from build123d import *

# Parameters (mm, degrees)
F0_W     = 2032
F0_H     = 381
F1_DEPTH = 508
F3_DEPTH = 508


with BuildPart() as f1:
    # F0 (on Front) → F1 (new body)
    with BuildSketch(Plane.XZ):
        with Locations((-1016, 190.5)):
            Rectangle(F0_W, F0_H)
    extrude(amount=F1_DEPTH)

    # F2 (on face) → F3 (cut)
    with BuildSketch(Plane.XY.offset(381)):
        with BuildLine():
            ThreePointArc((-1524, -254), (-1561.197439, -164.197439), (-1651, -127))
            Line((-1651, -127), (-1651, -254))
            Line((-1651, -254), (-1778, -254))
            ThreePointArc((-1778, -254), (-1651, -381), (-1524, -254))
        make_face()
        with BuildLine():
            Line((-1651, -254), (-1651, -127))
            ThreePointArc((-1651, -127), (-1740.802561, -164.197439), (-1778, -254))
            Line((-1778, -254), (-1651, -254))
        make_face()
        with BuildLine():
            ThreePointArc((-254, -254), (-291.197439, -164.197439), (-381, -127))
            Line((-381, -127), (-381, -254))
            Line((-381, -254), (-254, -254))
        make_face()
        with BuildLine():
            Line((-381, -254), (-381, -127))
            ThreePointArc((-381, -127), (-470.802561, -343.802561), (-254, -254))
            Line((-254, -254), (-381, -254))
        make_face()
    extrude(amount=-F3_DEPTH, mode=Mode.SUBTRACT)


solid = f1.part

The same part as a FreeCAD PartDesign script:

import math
import FreeCAD as App
import Part
import Sketcher
from FreeCAD import Vector
Q = App.Units.Quantity


def add_polygon(sketch, points):
    """Adds a closed chain of lines whose ends are joined by coincident constraints."""
    first, n = sketch.GeometryCount, len(points)
    for a, b in zip(points, points[1:] + points[:1]):
        sketch.addGeometry(Part.LineSegment(App.Vector(*a, 0), App.Vector(*b, 0)), False)
    for i in range(n):
        sketch.addConstraint(Sketcher.Constraint("Coincident", first + i, 2, first + (i + 1) % n, 1))

doc = App.newDocument("Part")
body = doc.addObject("PartDesign::Body", "Body")

# Sketch on XZ plane
sketch1 = body.newObject("Sketcher::SketchObject", "Sketch")
sketch1.AttachmentSupport = (doc.getObject("XZ_Plane"), [""])
sketch1.MapMode = "FlatFace"
add_polygon(sketch1, [(-2032, 381), (-2032, 0), (0, 0), (0, 381)])  # lines 0-3
sketch1.addConstraint([
    Sketcher.Constraint("Vertical", 0),
    Sketcher.Constraint("Horizontal", 1),
    Sketcher.Constraint("Vertical", 2),
    Sketcher.Constraint("Horizontal", 3),
    Sketcher.Constraint("Coincident", 1, 2, -1, 1),
    Sketcher.Constraint("DistanceX", 1, 1, 1, 2, Q("80 in")),
    Sketcher.Constraint("DistanceY", 0, 2, 0, 1, Q("15 in")),
])
pad1 = body.newObject("PartDesign::Pad", "Pad")
pad1.Profile = sketch1
pad1.Length = Q("20 in")

# Sketch on XY plane
sketch2 = body.newObject("Sketcher::SketchObject", "Sketch001")
sketch2.AttachmentSupport = (doc.getObject("XY_Plane"), [""])
sketch2.MapMode = "FlatFace"
sketch2.AttachmentOffset = App.Placement(Vector(0, 0, 15 * 25.4), App.Rotation())
sketch2.addGeometry([
    Part.ArcOfCircle(Part.Circle(Vector(-1651, -254, 0), Vector(0, 0, 1), 127), math.radians(0), math.radians(90)),  # 0
    Part.ArcOfCircle(Part.Circle(Vector(-1651, -254, 0), Vector(0, 0, 1), 127), math.radians(90), math.radians(180)),  # 1
    Part.ArcOfCircle(Part.Circle(Vector(-1651, -254, 0), Vector(0, 0, 1), 127), math.radians(180), math.radians(360)),  # 2
    Part.ArcOfCircle(Part.Circle(Vector(-381, -254, 0), Vector(0, 0, 1), 127), math.radians(0), math.radians(90)),  # 3
    Part.ArcOfCircle(Part.Circle(Vector(-381, -254, 0), Vector(0, 0, 1), 127), math.radians(90), math.radians(360)),  # 4
], False)
sketch2.addConstraint([
    Sketcher.Constraint("Tangent", 0, 2, 1, 1),
    Sketcher.Constraint("Tangent", 1, 2, 2, 1),
    Sketcher.Constraint("Tangent", 2, 2, 0, 1),
    Sketcher.Constraint("Tangent", 3, 1, 4, 2),
    Sketcher.Constraint("Coincident", 4, 1, 3, 2),
    Sketcher.Constraint("Equal", 2, 3),
    Sketcher.Constraint("Horizontal", 2, 3, 3, 3),
    Sketcher.Constraint("Horizontal", 4, 3, 1, 2),
    Sketcher.Constraint("Horizontal", 1, 2, 2, 2),
    Sketcher.Constraint("Horizontal", 2, 2, 3, 1),
    Sketcher.Constraint("Vertical", 2, 3, 0, 2),
    Sketcher.Constraint("Vertical", 3, 3, 4, 1),
    Sketcher.Constraint("Radius", 0, Q("5 in")),
    Sketcher.Constraint("DistanceX", 0, 3, -1, 1, Q("65 in")),
    Sketcher.Constraint("DistanceY", 0, 3, -1, 1, Q("10 in")),
    Sketcher.Constraint("DistanceX", 3, 3, -1, 1, Q("15 in")),
])
pocket1 = body.newObject("PartDesign::Pocket", "Pocket")
pocket1.Profile = sketch2
pocket1.Length = Q("20 in")

doc.recompute()
